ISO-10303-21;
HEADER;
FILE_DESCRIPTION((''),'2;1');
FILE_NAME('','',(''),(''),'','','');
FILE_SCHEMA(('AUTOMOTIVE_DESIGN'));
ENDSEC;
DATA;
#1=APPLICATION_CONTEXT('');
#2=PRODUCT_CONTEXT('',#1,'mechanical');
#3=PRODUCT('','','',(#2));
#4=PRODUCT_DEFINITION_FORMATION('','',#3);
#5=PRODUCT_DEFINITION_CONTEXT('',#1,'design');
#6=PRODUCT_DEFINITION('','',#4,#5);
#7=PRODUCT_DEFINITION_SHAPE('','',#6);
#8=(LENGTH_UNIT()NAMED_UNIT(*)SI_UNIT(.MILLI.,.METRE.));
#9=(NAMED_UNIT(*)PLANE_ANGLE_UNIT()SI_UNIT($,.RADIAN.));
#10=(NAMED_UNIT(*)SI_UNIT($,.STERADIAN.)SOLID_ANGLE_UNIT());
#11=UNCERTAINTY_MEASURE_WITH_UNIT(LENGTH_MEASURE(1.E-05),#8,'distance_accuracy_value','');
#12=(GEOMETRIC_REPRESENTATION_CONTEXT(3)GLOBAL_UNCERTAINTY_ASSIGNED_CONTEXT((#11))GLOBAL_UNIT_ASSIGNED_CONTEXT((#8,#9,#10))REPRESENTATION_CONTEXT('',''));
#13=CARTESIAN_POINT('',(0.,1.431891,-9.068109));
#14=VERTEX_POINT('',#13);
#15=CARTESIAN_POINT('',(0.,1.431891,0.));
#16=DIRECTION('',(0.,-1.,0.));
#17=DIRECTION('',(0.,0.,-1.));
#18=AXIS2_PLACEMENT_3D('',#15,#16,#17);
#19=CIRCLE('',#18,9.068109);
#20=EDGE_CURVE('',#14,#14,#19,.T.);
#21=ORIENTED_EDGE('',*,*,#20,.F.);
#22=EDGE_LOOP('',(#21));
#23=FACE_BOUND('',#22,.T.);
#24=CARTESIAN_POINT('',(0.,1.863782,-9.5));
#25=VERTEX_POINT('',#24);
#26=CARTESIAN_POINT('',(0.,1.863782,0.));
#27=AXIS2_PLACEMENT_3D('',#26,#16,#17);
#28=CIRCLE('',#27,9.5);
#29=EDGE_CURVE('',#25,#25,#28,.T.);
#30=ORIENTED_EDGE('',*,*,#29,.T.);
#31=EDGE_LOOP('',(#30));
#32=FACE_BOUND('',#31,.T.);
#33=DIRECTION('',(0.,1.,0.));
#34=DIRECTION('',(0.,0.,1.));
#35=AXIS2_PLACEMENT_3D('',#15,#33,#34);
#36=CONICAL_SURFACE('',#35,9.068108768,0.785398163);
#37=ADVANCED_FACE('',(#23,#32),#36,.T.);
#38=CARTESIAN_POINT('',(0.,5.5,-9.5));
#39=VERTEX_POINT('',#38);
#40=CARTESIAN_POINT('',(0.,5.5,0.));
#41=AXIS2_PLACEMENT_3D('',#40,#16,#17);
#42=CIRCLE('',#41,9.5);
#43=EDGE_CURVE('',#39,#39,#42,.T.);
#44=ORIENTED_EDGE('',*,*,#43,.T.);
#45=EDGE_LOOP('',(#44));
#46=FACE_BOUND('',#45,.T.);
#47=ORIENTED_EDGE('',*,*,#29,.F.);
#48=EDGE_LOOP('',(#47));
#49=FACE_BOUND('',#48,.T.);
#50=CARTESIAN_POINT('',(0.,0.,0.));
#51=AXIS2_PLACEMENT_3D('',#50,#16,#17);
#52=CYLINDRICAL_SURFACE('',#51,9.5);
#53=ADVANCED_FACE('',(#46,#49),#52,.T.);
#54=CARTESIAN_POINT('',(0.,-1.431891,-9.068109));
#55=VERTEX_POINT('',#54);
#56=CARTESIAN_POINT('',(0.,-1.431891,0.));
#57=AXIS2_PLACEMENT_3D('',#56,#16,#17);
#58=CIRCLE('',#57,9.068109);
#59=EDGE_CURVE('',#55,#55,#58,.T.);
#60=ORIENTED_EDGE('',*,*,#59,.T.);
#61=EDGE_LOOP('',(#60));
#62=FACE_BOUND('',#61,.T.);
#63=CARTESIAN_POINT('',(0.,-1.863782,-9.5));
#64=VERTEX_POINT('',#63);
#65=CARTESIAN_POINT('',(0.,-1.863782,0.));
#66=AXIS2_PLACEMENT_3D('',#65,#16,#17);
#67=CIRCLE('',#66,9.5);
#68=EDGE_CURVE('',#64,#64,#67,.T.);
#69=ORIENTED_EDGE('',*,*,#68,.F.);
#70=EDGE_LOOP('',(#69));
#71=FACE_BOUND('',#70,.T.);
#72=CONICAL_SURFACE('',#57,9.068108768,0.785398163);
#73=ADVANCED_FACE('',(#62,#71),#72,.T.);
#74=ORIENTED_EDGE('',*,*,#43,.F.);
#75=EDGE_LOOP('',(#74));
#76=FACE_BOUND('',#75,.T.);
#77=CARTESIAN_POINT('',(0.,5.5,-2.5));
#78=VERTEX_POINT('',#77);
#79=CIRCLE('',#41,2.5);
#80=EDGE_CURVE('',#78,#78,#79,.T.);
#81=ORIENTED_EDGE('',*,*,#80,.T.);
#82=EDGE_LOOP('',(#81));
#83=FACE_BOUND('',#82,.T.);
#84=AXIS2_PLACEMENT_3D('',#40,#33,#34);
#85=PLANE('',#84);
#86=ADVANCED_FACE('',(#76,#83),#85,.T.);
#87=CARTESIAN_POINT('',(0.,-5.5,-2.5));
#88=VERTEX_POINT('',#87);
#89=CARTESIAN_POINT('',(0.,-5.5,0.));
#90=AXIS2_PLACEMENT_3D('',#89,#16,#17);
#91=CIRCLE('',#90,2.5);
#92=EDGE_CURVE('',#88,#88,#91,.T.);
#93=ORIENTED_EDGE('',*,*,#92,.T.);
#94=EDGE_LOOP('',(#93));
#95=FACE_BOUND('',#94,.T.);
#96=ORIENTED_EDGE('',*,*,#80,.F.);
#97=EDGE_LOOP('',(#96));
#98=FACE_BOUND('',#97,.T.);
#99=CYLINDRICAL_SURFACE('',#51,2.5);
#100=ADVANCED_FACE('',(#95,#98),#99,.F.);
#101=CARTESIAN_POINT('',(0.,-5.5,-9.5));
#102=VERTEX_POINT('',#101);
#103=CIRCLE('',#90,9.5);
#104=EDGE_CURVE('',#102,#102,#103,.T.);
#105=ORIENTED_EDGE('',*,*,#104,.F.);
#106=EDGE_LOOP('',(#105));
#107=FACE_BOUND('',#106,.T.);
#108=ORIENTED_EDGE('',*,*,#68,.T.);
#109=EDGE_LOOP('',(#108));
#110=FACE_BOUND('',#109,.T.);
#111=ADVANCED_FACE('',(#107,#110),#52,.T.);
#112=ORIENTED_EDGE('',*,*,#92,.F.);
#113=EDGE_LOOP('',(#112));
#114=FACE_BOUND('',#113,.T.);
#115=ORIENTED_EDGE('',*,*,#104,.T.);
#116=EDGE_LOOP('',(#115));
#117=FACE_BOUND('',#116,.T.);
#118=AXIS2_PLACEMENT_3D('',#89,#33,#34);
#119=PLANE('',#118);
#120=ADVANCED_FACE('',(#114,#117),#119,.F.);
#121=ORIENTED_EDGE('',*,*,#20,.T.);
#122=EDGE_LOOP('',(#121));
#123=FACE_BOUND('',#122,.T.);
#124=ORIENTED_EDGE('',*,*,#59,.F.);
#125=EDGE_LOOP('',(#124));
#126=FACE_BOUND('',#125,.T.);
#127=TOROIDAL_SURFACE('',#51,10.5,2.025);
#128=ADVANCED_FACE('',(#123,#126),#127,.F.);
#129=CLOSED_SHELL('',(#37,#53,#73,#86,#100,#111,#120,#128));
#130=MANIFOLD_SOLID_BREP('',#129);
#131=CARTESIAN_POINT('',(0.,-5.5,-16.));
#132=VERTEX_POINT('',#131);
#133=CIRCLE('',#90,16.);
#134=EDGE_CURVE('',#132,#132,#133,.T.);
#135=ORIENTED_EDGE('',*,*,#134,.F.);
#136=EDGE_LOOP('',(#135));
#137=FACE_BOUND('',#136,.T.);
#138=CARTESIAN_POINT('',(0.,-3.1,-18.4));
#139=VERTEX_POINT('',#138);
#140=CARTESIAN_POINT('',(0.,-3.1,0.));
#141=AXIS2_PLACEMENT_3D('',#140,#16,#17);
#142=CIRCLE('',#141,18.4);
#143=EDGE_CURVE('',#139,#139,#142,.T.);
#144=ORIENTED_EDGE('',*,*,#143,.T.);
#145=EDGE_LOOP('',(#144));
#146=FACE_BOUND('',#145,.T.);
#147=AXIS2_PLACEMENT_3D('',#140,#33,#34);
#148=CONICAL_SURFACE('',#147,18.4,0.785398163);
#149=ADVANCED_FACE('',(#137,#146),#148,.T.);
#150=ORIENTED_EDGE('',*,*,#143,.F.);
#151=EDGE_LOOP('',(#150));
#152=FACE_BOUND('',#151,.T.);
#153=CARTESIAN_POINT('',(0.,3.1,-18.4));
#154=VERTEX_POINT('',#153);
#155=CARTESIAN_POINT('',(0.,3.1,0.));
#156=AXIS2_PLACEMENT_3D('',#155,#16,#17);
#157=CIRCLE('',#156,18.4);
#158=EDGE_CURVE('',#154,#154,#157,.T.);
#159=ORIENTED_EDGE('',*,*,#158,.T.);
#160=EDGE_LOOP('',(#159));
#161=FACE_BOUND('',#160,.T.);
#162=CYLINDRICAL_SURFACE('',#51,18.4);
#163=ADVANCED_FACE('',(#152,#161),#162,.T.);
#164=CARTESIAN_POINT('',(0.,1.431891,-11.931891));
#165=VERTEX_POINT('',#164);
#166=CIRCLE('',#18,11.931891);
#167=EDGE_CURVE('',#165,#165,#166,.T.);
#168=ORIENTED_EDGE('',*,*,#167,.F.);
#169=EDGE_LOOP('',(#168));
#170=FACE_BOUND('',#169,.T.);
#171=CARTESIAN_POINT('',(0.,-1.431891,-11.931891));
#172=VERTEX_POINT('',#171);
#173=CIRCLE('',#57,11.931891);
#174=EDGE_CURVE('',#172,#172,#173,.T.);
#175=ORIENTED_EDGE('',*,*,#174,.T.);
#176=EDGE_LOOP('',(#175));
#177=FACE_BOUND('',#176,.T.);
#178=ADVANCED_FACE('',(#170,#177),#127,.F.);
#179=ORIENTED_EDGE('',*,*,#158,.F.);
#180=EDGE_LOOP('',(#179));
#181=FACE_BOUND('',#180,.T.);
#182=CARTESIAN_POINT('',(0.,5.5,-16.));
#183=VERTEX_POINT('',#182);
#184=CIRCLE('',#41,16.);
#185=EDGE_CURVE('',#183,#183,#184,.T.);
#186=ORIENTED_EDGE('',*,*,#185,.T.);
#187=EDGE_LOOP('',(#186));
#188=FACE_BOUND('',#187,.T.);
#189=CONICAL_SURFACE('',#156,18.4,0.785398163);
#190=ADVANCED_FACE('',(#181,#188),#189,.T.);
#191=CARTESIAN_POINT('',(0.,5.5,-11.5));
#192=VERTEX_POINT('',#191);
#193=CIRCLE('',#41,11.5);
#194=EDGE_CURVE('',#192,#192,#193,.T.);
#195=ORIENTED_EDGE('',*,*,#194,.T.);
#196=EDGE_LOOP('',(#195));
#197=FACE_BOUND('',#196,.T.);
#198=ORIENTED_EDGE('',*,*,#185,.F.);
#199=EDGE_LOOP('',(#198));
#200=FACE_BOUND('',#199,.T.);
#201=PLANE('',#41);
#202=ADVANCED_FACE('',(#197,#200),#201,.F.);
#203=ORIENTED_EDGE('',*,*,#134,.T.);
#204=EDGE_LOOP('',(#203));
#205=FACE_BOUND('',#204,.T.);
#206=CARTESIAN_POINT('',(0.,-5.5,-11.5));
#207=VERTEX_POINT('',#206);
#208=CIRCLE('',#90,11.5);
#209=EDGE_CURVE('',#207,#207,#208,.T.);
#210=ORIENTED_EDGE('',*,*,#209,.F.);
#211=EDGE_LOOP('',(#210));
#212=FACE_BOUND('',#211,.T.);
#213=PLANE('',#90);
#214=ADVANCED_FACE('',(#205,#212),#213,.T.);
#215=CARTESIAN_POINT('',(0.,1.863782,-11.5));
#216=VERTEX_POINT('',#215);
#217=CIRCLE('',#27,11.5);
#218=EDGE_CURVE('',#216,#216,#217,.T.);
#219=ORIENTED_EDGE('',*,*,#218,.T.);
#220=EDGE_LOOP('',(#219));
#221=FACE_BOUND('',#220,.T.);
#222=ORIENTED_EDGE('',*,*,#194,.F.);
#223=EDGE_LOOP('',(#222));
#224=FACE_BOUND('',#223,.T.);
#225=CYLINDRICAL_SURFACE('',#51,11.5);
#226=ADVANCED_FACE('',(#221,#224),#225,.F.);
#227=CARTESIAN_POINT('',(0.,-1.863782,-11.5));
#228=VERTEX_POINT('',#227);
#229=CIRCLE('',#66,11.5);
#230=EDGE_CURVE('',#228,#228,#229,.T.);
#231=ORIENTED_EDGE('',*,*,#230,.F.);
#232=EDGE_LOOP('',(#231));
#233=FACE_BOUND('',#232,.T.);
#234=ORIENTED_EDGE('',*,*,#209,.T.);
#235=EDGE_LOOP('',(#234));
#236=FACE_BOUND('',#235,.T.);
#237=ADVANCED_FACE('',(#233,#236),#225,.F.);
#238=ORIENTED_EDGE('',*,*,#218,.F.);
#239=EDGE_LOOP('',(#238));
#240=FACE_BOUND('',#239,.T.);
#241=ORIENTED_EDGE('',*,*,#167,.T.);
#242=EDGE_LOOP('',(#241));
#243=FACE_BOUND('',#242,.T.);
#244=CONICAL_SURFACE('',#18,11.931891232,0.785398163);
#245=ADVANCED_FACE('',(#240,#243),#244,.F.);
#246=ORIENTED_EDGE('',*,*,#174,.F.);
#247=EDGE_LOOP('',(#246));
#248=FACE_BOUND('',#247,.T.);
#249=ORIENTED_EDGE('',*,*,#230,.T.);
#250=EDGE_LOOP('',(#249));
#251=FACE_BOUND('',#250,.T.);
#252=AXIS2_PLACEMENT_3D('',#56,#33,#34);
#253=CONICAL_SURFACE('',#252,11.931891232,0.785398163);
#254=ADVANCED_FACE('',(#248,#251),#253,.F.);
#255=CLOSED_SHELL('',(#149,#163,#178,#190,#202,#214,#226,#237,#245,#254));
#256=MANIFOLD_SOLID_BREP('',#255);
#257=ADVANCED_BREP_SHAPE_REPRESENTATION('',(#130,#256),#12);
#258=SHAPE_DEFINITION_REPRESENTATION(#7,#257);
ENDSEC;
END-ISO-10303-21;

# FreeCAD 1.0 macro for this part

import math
import FreeCAD as App
import Part
import Sketcher

V = App.Vector

doc = App.newDocument("Part")
body = doc.addObject("PartDesign::Body", "Body")
body.AllowCompound = True

# Sketch on XY plane
sketch1 = body.newObject("Sketcher::SketchObject", "Sketch")
sketch1.AttachmentSupport = (doc.getObject("XY_Plane"), [""])
sketch1.MapMode = "FlatFace"
sketch1.addGeometry([
    Part.LineSegment(V(2.5, 5.5, 0), V(2.5, -5.5, 0)),  # 0
    Part.LineSegment(V(2.5, -5.5, 0), V(9.5, -5.5, 0)),  # 1
    Part.LineSegment(V(9.5, -5.5, 0), V(9.5, -1.9, 0)),  # 2
    Part.LineSegment(V(9.5, -1.9, 0), V(9.1, -1.4, 0)),  # 3
    Part.ArcOfCircle(Part.Circle(V(10.5, 0, 0), V(0, 0, 1), 2), math.radians(135), math.radians(225)),  # 4
    Part.LineSegment(V(9.1, 1.4, 0), V(9.5, 1.9, 0)),  # 5
    Part.LineSegment(V(9.5, 1.9, 0), V(9.5, 5.5, 0)),  # 6
    Part.LineSegment(V(9.5, 5.5, 0), V(2.5, 5.5, 0)),  # 7
    Part.ArcOfCircle(Part.Circle(V(10.5, 0, 0), V(0, 0, 1), 2), math.radians(-45), math.radians(45)),  # 8
    Part.LineSegment(V(11.9, -1.4, 0), V(11.5, -1.9, 0)),  # 9
    Part.LineSegment(V(11.5, -1.9, 0), V(11.5, -5.5, 0)),  # 10
    Part.LineSegment(V(11.5, -5.5, 0), V(16, -5.5, 0)),  # 11
    Part.LineSegment(V(16, -5.5, 0), V(18.4, -3.1, 0)),  # 12
    Part.LineSegment(V(18.4, -3.1, 0), V(18.4, 3.1, 0)),  # 13
    Part.LineSegment(V(18.4, 3.1, 0), V(16, 5.5, 0)),  # 14
    Part.LineSegment(V(16, 5.5, 0), V(11.5, 5.5, 0)),  # 15
    Part.LineSegment(V(11.5, 5.5, 0), V(11.5, 1.9, 0)),  # 16
    Part.LineSegment(V(11.5, 1.9, 0), V(11.9, 1.4, 0)),  # 17
], False)
sketch1.addConstraint([
    Sketcher.Constraint("Coincident", 0, 2, 1, 1),
    Sketcher.Constraint("Coincident", 1, 2, 2, 1),
    Sketcher.Constraint("Coincident", 2, 2, 3, 1),
    Sketcher.Constraint("Tangent", 3, 2, 4, 2),
    Sketcher.Constraint("Tangent", 4, 1, 5, 1),
    Sketcher.Constraint("Coincident", 5, 2, 6, 1),
    Sketcher.Constraint("Coincident", 6, 2, 7, 1),
    Sketcher.Constraint("Coincident", 7, 2, 0, 1),
    Sketcher.Constraint("Tangent", 8, 1, 9, 1),
    Sketcher.Constraint("Coincident", 9, 2, 10, 1),
    Sketcher.Constraint("Coincident", 10, 2, 11, 1),
    Sketcher.Constraint("Coincident", 11, 2, 12, 1),
    Sketcher.Constraint("Coincident", 12, 2, 13, 1),
    Sketcher.Constraint("Coincident", 13, 2, 14, 1),
    Sketcher.Constraint("Coincident", 14, 2, 15, 1),
    Sketcher.Constraint("Coincident", 15, 2, 16, 1),
    Sketcher.Constraint("Coincident", 16, 2, 17, 1),
    Sketcher.Constraint("Tangent", 17, 2, 8, 2),
    Sketcher.Constraint("Vertical", 0),
    Sketcher.Constraint("Horizontal", 1),
    Sketcher.Constraint("Vertical", 2),
    Sketcher.Constraint("Vertical", 6),
    Sketcher.Constraint("Horizontal", 7),
    Sketcher.Constraint("Vertical", 10),
    Sketcher.Constraint("Horizontal", 11),
    Sketcher.Constraint("Vertical", 13),
    Sketcher.Constraint("Horizontal", 15),
    Sketcher.Constraint("Vertical", 16),
    Sketcher.Constraint("Coincident", 8, 3, 4, 3),
    Sketcher.Constraint("Equal", 4, 8),
    Sketcher.Constraint("Symmetric", 3, 2, 4, 1, -1),
    Sketcher.Constraint("Symmetric", 1, 2, 6, 2, -1),
    Sketcher.Constraint("Symmetric", 11, 2, 14, 2, -1),
    Sketcher.Constraint("Symmetric", 9, 2, 16, 2, -1),
    Sketcher.Constraint("Perpendicular", 3, 5),
    Sketcher.Constraint("Parallel", 5, 9),
    Sketcher.Constraint("Parallel", 9, 12),
    Sketcher.Constraint("Perpendicular", 12, 14),
    Sketcher.Constraint("Horizontal", 2, 2, 9, 2),
    Sketcher.Constraint("Horizontal", 1, 2, 10, 2),
    Sketcher.Constraint("DistanceX", 1, 1, 1, 2, 7.0),
    Sketcher.Constraint("DistanceY", 0, 2, 0, 1, 11.0),
    Sketcher.Constraint("DistanceX", 11, 1, 11, 2, 4.5),
    Sketcher.Constraint("DistanceY", 13, 1, 13, 2, 6.2),
    Sketcher.Constraint("DistanceX", -1, 1, 11, 2, 16.0),
    Sketcher.Constraint("Radius", 4, 2.025),
    Sketcher.Constraint("DistanceX", 0, 2, 4, 3, 8.0),
])
revolution = body.newObject("PartDesign::Revolution", "Revolution")
revolution.Profile = sketch1
revolution.ReferenceAxis = (sketch1, ["V_Axis"])
revolution.Angle = 360

doc.recompute()
